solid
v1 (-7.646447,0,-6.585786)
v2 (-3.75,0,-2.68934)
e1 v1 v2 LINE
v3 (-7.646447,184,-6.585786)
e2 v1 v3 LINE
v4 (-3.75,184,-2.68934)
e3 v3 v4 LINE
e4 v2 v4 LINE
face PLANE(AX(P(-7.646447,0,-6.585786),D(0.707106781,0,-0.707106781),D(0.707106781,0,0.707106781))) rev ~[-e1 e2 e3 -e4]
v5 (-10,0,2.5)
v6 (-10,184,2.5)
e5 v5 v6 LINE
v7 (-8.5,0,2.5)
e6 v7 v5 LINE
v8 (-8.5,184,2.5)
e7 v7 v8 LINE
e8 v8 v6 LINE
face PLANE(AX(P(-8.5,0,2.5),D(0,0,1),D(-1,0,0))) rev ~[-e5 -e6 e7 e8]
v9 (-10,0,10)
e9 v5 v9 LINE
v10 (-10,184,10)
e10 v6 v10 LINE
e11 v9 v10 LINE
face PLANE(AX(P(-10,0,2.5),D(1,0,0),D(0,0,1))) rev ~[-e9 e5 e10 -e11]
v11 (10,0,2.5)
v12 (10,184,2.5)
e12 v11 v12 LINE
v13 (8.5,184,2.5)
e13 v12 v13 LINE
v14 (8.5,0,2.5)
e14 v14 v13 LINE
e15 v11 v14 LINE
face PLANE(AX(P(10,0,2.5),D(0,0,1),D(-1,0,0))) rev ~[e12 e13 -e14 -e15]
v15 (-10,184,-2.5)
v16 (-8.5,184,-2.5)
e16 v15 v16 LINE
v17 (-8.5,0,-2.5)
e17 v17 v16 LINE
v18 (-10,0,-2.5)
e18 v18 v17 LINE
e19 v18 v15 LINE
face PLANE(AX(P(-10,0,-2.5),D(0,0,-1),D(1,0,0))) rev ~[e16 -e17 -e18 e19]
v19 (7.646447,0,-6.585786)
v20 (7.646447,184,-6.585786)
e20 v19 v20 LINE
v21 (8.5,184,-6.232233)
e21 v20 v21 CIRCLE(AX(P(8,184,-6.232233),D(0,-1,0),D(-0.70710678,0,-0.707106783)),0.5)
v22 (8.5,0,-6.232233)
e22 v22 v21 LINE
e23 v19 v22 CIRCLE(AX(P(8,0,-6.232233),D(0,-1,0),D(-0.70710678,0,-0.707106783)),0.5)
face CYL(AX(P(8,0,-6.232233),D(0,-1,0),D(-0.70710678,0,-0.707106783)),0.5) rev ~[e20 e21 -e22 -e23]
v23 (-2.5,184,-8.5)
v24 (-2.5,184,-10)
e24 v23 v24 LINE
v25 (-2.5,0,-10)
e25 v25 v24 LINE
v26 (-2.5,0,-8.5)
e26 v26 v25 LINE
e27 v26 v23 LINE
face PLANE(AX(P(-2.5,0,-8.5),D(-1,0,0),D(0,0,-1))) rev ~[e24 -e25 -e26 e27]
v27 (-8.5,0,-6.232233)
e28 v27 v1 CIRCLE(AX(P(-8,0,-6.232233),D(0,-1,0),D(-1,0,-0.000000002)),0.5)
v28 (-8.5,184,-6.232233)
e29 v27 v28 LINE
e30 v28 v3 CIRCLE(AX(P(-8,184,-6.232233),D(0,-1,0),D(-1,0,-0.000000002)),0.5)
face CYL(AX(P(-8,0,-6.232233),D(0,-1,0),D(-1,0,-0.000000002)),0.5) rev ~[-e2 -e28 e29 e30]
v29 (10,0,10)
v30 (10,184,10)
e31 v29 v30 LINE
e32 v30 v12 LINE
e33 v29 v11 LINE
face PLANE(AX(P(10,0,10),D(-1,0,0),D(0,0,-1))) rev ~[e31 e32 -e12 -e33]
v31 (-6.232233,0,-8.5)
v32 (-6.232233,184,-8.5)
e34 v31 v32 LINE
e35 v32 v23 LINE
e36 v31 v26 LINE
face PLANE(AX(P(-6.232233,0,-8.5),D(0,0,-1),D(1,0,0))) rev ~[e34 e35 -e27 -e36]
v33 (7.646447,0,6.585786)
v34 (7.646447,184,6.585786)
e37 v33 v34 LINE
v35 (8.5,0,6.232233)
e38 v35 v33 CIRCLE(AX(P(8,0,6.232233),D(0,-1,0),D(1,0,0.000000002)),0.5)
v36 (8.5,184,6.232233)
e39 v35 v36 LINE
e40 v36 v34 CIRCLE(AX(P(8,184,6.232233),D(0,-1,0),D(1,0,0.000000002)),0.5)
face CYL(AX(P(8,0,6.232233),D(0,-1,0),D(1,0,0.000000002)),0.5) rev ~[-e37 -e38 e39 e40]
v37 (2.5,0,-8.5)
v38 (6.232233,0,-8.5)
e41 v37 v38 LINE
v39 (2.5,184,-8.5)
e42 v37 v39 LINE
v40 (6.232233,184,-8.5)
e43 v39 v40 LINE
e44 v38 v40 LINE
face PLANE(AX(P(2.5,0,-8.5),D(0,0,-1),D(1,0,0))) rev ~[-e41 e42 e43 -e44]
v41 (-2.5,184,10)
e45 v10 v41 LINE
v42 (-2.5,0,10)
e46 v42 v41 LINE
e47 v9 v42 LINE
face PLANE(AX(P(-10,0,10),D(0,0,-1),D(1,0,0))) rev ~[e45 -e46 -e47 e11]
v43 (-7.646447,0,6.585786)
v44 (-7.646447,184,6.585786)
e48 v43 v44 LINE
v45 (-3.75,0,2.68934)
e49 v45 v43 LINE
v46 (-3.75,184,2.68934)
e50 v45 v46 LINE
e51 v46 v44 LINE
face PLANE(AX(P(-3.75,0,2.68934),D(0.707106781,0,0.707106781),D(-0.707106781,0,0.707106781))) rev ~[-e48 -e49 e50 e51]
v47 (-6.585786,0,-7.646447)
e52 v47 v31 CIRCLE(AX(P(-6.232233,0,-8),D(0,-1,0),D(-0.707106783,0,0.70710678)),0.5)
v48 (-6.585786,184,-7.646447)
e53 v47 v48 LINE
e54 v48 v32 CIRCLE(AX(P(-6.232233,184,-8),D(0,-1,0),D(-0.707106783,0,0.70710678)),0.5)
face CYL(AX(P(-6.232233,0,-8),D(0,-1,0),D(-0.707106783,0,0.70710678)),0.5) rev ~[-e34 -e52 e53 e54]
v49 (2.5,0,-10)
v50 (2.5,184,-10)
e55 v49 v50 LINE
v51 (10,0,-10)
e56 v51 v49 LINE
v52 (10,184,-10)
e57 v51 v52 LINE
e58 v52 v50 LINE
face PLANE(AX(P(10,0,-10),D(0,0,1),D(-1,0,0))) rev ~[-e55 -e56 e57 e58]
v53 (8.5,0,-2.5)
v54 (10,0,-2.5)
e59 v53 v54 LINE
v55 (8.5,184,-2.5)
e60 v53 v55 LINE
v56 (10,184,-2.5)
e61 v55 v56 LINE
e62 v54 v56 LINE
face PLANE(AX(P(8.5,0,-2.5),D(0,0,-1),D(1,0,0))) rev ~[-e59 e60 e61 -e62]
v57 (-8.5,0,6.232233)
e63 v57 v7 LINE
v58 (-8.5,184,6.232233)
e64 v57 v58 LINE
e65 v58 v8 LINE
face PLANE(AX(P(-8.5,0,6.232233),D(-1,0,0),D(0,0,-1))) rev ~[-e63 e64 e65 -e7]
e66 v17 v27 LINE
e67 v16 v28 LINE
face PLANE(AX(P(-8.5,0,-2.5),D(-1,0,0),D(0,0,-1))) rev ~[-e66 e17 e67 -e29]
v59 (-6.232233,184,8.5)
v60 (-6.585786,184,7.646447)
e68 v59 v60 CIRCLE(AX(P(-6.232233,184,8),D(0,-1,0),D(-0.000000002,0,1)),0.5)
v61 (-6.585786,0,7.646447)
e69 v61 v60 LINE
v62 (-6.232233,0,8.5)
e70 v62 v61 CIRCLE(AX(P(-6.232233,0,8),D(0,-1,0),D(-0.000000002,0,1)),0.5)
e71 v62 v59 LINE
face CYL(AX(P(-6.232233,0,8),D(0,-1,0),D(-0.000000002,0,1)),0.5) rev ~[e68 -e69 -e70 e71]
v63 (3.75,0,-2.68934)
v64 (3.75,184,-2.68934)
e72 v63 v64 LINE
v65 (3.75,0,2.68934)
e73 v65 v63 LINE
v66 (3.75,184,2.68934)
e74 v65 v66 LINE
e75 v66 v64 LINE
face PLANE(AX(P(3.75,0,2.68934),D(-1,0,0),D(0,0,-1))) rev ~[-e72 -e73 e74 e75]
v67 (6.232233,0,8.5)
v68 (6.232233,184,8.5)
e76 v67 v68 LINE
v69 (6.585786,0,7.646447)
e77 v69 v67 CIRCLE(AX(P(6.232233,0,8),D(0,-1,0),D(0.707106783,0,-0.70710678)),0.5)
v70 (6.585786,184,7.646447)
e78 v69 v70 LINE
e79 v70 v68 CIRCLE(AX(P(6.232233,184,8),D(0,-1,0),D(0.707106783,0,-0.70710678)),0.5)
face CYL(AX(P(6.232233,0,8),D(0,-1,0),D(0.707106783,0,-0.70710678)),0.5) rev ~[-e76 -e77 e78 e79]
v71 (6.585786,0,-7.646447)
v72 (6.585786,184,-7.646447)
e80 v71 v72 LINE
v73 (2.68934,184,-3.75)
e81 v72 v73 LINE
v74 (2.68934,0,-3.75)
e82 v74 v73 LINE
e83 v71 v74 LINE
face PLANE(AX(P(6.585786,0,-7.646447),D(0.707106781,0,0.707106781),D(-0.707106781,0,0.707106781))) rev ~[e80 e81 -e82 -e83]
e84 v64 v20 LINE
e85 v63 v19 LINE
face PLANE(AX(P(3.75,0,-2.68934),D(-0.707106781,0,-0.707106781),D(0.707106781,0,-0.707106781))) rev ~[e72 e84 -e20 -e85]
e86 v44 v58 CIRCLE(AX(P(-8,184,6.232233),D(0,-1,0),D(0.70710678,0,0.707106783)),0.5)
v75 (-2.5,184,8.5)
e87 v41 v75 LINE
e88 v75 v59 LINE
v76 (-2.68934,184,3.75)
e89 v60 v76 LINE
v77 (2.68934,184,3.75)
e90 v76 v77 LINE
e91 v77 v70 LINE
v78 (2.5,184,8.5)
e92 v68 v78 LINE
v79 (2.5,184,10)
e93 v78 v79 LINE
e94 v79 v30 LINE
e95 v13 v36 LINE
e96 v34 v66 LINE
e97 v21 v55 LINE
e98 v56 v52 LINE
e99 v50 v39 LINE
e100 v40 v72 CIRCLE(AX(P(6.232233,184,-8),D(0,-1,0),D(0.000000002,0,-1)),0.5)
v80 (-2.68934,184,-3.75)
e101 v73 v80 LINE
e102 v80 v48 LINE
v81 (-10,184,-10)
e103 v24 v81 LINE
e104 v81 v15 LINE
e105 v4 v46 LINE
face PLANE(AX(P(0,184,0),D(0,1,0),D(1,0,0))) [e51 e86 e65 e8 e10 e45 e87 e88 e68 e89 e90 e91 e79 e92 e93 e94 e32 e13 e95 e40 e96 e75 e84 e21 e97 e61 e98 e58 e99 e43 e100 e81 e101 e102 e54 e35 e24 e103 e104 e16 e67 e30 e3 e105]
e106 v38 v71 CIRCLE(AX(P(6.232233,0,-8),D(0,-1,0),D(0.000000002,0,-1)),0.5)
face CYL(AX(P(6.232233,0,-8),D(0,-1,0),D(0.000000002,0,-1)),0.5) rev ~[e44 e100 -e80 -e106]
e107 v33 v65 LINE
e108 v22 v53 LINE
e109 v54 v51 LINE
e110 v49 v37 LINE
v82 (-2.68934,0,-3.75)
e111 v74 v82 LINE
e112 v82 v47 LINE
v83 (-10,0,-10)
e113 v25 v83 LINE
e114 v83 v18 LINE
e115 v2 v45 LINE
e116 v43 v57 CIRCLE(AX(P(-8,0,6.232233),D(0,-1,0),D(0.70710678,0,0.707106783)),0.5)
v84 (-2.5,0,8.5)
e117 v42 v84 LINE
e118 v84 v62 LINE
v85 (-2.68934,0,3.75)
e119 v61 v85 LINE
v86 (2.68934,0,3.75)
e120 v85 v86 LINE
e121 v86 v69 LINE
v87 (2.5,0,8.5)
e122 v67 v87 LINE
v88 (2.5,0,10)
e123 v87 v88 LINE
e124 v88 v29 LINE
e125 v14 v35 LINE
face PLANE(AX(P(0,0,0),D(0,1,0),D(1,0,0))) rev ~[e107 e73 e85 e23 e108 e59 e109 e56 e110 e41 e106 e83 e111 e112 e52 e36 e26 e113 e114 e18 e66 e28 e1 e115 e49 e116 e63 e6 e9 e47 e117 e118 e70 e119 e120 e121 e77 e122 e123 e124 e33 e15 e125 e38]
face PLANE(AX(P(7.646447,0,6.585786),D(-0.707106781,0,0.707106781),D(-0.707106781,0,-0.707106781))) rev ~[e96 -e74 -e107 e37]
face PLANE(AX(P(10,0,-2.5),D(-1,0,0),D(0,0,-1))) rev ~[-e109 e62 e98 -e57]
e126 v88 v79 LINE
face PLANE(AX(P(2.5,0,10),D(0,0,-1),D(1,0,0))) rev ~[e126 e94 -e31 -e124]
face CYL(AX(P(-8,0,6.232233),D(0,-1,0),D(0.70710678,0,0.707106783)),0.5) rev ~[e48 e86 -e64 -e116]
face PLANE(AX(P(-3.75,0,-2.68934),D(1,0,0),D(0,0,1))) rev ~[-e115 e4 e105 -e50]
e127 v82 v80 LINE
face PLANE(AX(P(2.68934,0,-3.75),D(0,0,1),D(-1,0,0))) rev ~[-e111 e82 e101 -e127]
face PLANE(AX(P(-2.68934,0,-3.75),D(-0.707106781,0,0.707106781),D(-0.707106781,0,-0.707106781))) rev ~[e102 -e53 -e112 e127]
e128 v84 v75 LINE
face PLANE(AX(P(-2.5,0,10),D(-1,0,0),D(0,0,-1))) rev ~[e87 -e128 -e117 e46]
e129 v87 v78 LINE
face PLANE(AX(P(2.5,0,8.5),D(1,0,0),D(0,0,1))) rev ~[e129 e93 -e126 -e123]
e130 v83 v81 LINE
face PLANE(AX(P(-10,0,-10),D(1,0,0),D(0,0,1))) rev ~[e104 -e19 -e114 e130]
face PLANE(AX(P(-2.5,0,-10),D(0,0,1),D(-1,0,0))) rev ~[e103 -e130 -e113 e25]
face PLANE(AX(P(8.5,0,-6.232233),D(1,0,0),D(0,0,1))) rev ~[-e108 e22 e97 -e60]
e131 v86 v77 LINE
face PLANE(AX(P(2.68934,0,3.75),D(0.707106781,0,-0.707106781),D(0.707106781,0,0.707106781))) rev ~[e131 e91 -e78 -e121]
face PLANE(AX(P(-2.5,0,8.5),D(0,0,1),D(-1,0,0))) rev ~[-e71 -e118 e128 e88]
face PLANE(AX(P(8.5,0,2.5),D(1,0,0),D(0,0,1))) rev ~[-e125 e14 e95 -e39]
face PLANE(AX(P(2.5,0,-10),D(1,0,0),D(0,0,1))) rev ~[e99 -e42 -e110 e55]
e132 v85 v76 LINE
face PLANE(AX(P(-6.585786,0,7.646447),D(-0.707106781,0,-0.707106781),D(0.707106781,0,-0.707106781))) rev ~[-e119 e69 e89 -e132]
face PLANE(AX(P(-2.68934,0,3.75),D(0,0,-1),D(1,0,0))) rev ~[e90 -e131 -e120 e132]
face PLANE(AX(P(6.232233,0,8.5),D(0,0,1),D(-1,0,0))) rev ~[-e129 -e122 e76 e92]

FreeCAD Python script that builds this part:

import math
import FreeCAD as App
import Part
import Sketcher

V = App.Vector
Q = App.Units.Quantity

doc = App.newDocument("Part")
body = doc.addObject("PartDesign::Body", "Body")

sketch1 = body.newObject("Sketcher::SketchObject", "Sketch")
sketch1.AttachmentSupport = (doc.getObject("XZ_Plane"), [""])
sketch1.MapMode = "FlatFace"
sketch1.addGeometry(Part.LineSegment(V(-10, 2.5, 0), V(-10, 10, 0)), False)
sketch1.addGeometry(Part.LineSegment(V(-10, 10, 0), V(-2.5, 10, 0)), False)
sketch1.addGeometry(Part.LineSegment(V(-2.5, 10, 0), V(-2.5, 8.5, 0)), False)
sketch1.addGeometry(Part.LineSegment(V(-2.5, 8.5, 0), V(-6.2, 8.5, 0)), False)
sketch1.addGeometry(Part.ArcOfCircle(Part.Circle(V(-6.2, 8, 0), V(0, 0, 1), 0.5), math.radians(90), math.radians(225)), False)
sketch1.addGeometry(Part.LineSegment(V(-6.6, 7.6, 0), V(-2.7, 3.8, 0)), False)
sketch1.addGeometry(Part.LineSegment(V(-2.7, 3.8, 0), V(2.7, 3.8, 0)), False)
sketch1.addGeometry(Part.LineSegment(V(2.7, 3.8, 0), V(6.6, 7.6, 0)), False)
sketch1.addGeometry(Part.ArcOfCircle(Part.Circle(V(6.2, 8, 0), V(0, 0, 1), 0.5), math.radians(-45), math.radians(90)), False)
sketch1.addGeometry(Part.LineSegment(V(6.2, 8.5, 0), V(2.5, 8.5, 0)), False)
sketch1.addGeometry(Part.LineSegment(V(2.5, 8.5, 0), V(2.5, 10, 0)), False)
sketch1.addGeometry(Part.LineSegment(V(2.5, 10, 0), V(10, 10, 0)), False)
sketch1.addGeometry(Part.LineSegment(V(10, 10, 0), V(10, 2.5, 0)), False)
sketch1.addGeometry(Part.LineSegment(V(10, 2.5, 0), V(8.5, 2.5, 0)), False)
sketch1.addGeometry(Part.LineSegment(V(8.5, 2.5, 0), V(8.5, 6.2, 0)), False)
sketch1.addGeometry(Part.ArcOfCircle(Part.Circle(V(8, 6.2, 0), V(0, 0, 1), 0.5), math.radians(0), math.radians(135)), False)
sketch1.addGeometry(Part.LineSegment(V(7.6, 6.6, 0), V(3.8, 2.7, 0)), False)
sketch1.addGeometry(Part.LineSegment(V(3.8, 2.7, 0), V(3.8, -2.7, 0)), False)
sketch1.addGeometry(Part.LineSegment(V(3.8, -2.7, 0), V(7.6, -6.6, 0)), False)
sketch1.addGeometry(Part.ArcOfCircle(Part.Circle(V(8, -6.2, 0), V(0, 0, 1), 0.5), math.radians(-135), math.radians(0)), False)
sketch1.addGeometry(Part.LineSegment(V(8.5, -6.2, 0), V(8.5, -2.5, 0)), False)
sketch1.addGeometry(Part.LineSegment(V(8.5, -2.5, 0), V(10, -2.5, 0)), False)
sketch1.addGeometry(Part.LineSegment(V(10, -2.5, 0), V(10, -10, 0)), False)
sketch1.addGeometry(Part.LineSegment(V(10, -10, 0), V(2.5, -10, 0)), False)
sketch1.addGeometry(Part.LineSegment(V(2.5, -10, 0), V(2.5, -8.5, 0)), False)
sketch1.addGeometry(Part.LineSegment(V(2.5, -8.5, 0), V(6.2, -8.5, 0)), False)
sketch1.addGeometry(Part.ArcOfCircle(Part.Circle(V(6.2, -8, 0), V(0, 0, 1), 0.5), math.radians(-90), math.radians(45)), False)
sketch1.addGeometry(Part.LineSegment(V(6.6, -7.6, 0), V(2.7, -3.8, 0)), False)
sketch1.addGeometry(Part.LineSegment(V(2.7, -3.8, 0), V(-2.7, -3.8, 0)), False)
sketch1.addGeometry(Part.LineSegment(V(-2.7, -3.8, 0), V(-6.6, -7.6, 0)), False)
sketch1.addGeometry(Part.ArcOfCircle(Part.Circle(V(-6.2, -8, 0), V(0, 0, 1), 0.5), math.radians(135), math.radians(270)), False)
sketch1.addGeometry(Part.LineSegment(V(-6.2, -8.5, 0), V(-2.5, -8.5, 0)), False)
sketch1.addGeometry(Part.LineSegment(V(-2.5, -8.5, 0), V(-2.5, -10, 0)), False)
sketch1.addGeometry(Part.LineSegment(V(-2.5, -10, 0), V(-10, -10, 0)), False)
sketch1.addGeometry(Part.LineSegment(V(-10, -10, 0), V(-10, -2.5, 0)), False)
sketch1.addGeometry(Part.LineSegment(V(-10, -2.5, 0), V(-8.5, -2.5, 0)), False)
sketch1.addGeometry(Part.LineSegment(V(-8.5, -2.5, 0), V(-8.5, -6.2, 0)), False)
sketch1.addGeometry(Part.ArcOfCircle(Part.Circle(V(-8, -6.2, 0), V(0, 0, 1), 0.5), math.radians(-180), math.radians(-45)), False)
sketch1.addGeometry(Part.LineSegment(V(-7.6, -6.6, 0), V(-3.8, -2.7, 0)), False)
sketch1.addGeometry(Part.LineSegment(V(-3.8, -2.7, 0), V(-3.8, 2.7, 0)), False)
sketch1.addGeometry(Part.LineSegment(V(-3.8, 2.7, 0), V(-7.6, 6.6, 0)), False)
sketch1.addGeometry(Part.ArcOfCircle(Part.Circle(V(-8, 6.2, 0), V(0, 0, 1), 0.5), math.radians(45), math.radians(180)), False)
sketch1.addGeometry(Part.LineSegment(V(-8.5, 6.2, 0), V(-8.5, 2.5, 0)), False)
sketch1.addGeometry(Part.LineSegment(V(-8.5, 2.5, 0), V(-10, 2.5, 0)), False)
sketch1.addConstraint(Sketcher.Constraint("Coincident", 0, 2, 1, 1))
sketch1.addConstraint(Sketcher.Constraint("Coincident", 1, 2, 2, 1))
sketch1.addConstraint(Sketcher.Constraint("Coincident", 2, 2, 3, 1))
sketch1.addConstraint(Sketcher.Constraint("Tangent", 3, 2, 4, 1))
sketch1.addConstraint(Sketcher.Constraint("Tangent", 4, 2, 5, 1))
sketch1.addConstraint(Sketcher.Constraint("Coincident", 5, 2, 6, 1))
sketch1.addConstraint(Sketcher.Constraint("Coincident", 6, 2, 7, 1))
sketch1.addConstraint(Sketcher.Constraint("Tangent", 7, 2, 8, 1))
sketch1.addConstraint(Sketcher.Constraint("Tangent", 8, 2, 9, 1))
sketch1.addConstraint(Sketcher.Constraint("Coincident", 9, 2, 10, 1))
sketch1.addConstraint(Sketcher.Constraint("Coincident", 10, 2, 11, 1))
sketch1.addConstraint(Sketcher.Constraint("Coincident", 11, 2, 12, 1))
sketch1.addConstraint(Sketcher.Constraint("Coincident", 12, 2, 13, 1))
sketch1.addConstraint(Sketcher.Constraint("Coincident", 13, 2, 14, 1))
sketch1.addConstraint(Sketcher.Constraint("Tangent", 14, 2, 15, 1))
sketch1.addConstraint(Sketcher.Constraint("Tangent", 15, 2, 16, 1))
sketch1.addConstraint(Sketcher.Constraint("Coincident", 16, 2, 17, 1))
sketch1.addConstraint(Sketcher.Constraint("Coincident", 17, 2, 18, 1))
sketch1.addConstraint(Sketcher.Constraint("Tangent", 18, 2, 19, 1))
sketch1.addConstraint(Sketcher.Constraint("Tangent", 19, 2, 20, 1))
sketch1.addConstraint(Sketcher.Constraint("Coincident", 20, 2, 21, 1))
sketch1.addConstraint(Sketcher.Constraint("Coincident", 21, 2, 22, 1))
sketch1.addConstraint(Sketcher.Constraint("Coincident", 22, 2, 23, 1))
sketch1.addConstraint(Sketcher.Constraint("Coincident", 23, 2, 24, 1))
sketch1.addConstraint(Sketcher.Constraint("Coincident", 24, 2, 25, 1))
sketch1.addConstraint(Sketcher.Constraint("Tangent", 25, 2, 26, 1))
sketch1.addConstraint(Sketcher.Constraint("Tangent", 26, 2, 27, 1))
sketch1.addConstraint(Sketcher.Constraint("Coincident", 27, 2, 28, 1))
sketch1.addConstraint(Sketcher.Constraint("Coincident", 28, 2, 29, 1))
sketch1.addConstraint(Sketcher.Constraint("Tangent", 29, 2, 30, 1))
sketch1.addConstraint(Sketcher.Constraint("Tangent", 30, 2, 31, 1))
sketch1.addConstraint(Sketcher.Constraint("Coincident", 31, 2, 32, 1))
sketch1.addConstraint(Sketcher.Constraint("Coincident", 32, 2, 33, 1))
sketch1.addConstraint(Sketcher.Constraint("Coincident", 33, 2, 34, 1))
sketch1.addConstraint(Sketcher.Constraint("Coincident", 34, 2, 35, 1))
sketch1.addConstraint(Sketcher.Constraint("Coincident", 35, 2, 36, 1))
sketch1.addConstraint(Sketcher.Constraint("Tangent", 36, 2, 37, 1))
sketch1.addConstraint(Sketcher.Constraint("Tangent", 37, 2, 38, 1))
sketch1.addConstraint(Sketcher.Constraint("Coincident", 38, 2, 39, 1))
sketch1.addConstraint(Sketcher.Constraint("Coincident", 39, 2, 40, 1))
sketch1.addConstraint(Sketcher.Constraint("Tangent", 40, 2, 41, 1))
sketch1.addConstraint(Sketcher.Constraint("Tangent", 41, 2, 42, 1))
sketch1.addConstraint(Sketcher.Constraint("Coincident", 42, 2, 43, 1))
sketch1.addConstraint(Sketcher.Constraint("Coincident", 43, 2, 0, 1))
sketch1.addConstraint(Sketcher.Constraint("Vertical", 0))
sketch1.addConstraint(Sketcher.Constraint("Horizontal", 1))
sketch1.addConstraint(Sketcher.Constraint("Vertical", 2))
sketch1.addConstraint(Sketcher.Constraint("Horizontal", 3))
sketch1.addConstraint(Sketcher.Constraint("Horizontal", 6))
sketch1.addConstraint(Sketcher.Constraint("Horizontal", 9))
sketch1.addConstraint(Sketcher.Constraint("Vertical", 10))
sketch1.addConstraint(Sketcher.Constraint("Horizontal", 11))
sketch1.addConstraint(Sketcher.Constraint("Vertical", 12))
sketch1.addConstraint(Sketcher.Constraint("Horizontal", 13))
sketch1.addConstraint(Sketcher.Constraint("Vertical", 14))
sketch1.addConstraint(Sketcher.Constraint("Vertical", 17))
sketch1.addConstraint(Sketcher.Constraint("Vertical", 20))
sketch1.addConstraint(Sketcher.Constraint("Horizontal", 21))
sketch1.addConstraint(Sketcher.Constraint("Vertical", 22))
sketch1.addConstraint(Sketcher.Constraint("Horizontal", 23))
sketch1.addConstraint(Sketcher.Constraint("Vertical", 24))
sketch1.addConstraint(Sketcher.Constraint("Horizontal", 25))
sketch1.addConstraint(Sketcher.Constraint("Horizontal", 28))
sketch1.addConstraint(Sketcher.Constraint("Horizontal", 31))
sketch1.addConstraint(Sketcher.Constraint("Vertical", 32))
sketch1.addConstraint(Sketcher.Constraint("Horizontal", 33))
sketch1.addConstraint(Sketcher.Constraint("Vertical", 34))
sketch1.addConstraint(Sketcher.Constraint("Horizontal", 35))
sketch1.addConstraint(Sketcher.Constraint("Vertical", 36))
sketch1.addConstraint(Sketcher.Constraint("Vertical", 39))
sketch1.addConstraint(Sketcher.Constraint("Vertical", 42))
sketch1.addConstraint(Sketcher.Constraint("Horizontal", 43))
sketch1.addConstraint(Sketcher.Constraint("Equal", 4, 8))
sketch1.addConstraint(Sketcher.Constraint("Equal", 8, 15))
sketch1.addConstraint(Sketcher.Constraint("Equal", 15, 19))
sketch1.addConstraint(Sketcher.Constraint("Equal", 19, 26))
sketch1.addConstraint(Sketcher.Constraint("Equal", 26, 30))
sketch1.addConstraint(Sketcher.Constraint("Equal", 30, 37))
sketch1.addConstraint(Sketcher.Constraint("Equal", 37, 41))
sketch1.addConstraint(Sketcher.Constraint("Symmetric", 4, 3, 26, 3, -1, 1))
sketch1.addConstraint(Sketcher.Constraint("Symmetric", 8, 3, 30, 3, -1, 1))
sketch1.addConstraint(Sketcher.Constraint("Symmetric", 15, 3, 37, 3, -1, 1))
sketch1.addConstraint(Sketcher.Constraint("Symmetric", 19, 3, 41, 3, -1, 1))
sketch1.addConstraint(Sketcher.Constraint("Symmetric", 0, 2, 22, 2, -1, 1))
sketch1.addConstraint(Sketcher.Constraint("Symmetric", 5, 2, 27, 2, -1, 1))
sketch1.addConstraint(Sketcher.Constraint("Symmetric", 10, 2, 32, 2, -1, 1))
sketch1.addConstraint(Sketcher.Constraint("Symmetric", 12, 2, 34, 2, -1, 1))
sketch1.addConstraint(Sketcher.Constraint("Symmetric", 16, 2, 38, 2, -1, 1))
sketch1.addConstraint(Sketcher.Constraint("Symmetric", 4, 3, 8, 3, -2))
sketch1.addConstraint(Sketcher.Constraint("Symmetric", 19, 3, 37, 3, -2))
sketch1.addConstraint(Sketcher.Constraint("Symmetric", 1, 2, 10, 2, -2))
sketch1.addConstraint(Sketcher.Constraint("Symmetric", 21, 2, 34, 2, -2))
sketch1.addConstraint(Sketcher.Constraint("Perpendicular", 5, 7))
sketch1.addConstraint(Sketcher.Constraint("Parallel", 7, 16))
sketch1.addConstraint(Sketcher.Constraint("Perpendicular", 16, 18))
sketch1.addConstraint(Sketcher.Constraint("Perpendicular", 27, 29))
sketch1.addConstraint(Sketcher.Constraint("Perpendicular", 38, 40))
sketch1.addConstraint(Sketcher.Constraint("Horizontal", 4, 2, 7, 2))
sketch1.addConstraint(Sketcher.Constraint("Horizontal", 13, 2, 42, 2))
sketch1.addConstraint(Sketcher.Constraint("Vertical", 10, 2, 23, 2))
sketch1.addConstraint(Sketcher.Constraint("Equal", 33, 0))
sketch1.addConstraint(Sketcher.Constraint("Equal", 43, 2))
sketch1.addConstraint(Sketcher.Constraint("Equal", 31, 14))
sketch1.addConstraint(Sketcher.Constraint("Equal", 28, 17))
sketch1.addConstraint(Sketcher.Constraint("Equal", 7, 16))
sketch1.addConstraint(Sketcher.Constraint("Radius", 4, Q("0.5 mm")))
sketch1.addConstraint(Sketcher.Constraint("DistanceX", 1, 1, 1, 2, Q("7.5 mm")))
sketch1.addConstraint(Sketcher.Constraint("DistanceX", 13, 2, 13, 1, Q("1.5 mm")))
sketch1.addConstraint(Sketcher.Constraint("DistanceY", -1, 1, 4, 3, Q("8 mm")))
sketch1.addConstraint(Sketcher.Constraint("DistanceY", -1, 1, 5, 2, Q("3.75 mm")))
sketch1.addConstraint(Sketcher.Constraint("DistanceX", 6, 1, 6, 2, Q("5.37868 mm")))
pad1 = body.newObject("PartDesign::Pad", "Pad")
pad1.Profile = sketch1
pad1.Length = 184
pad1.Reversed = True

doc.recompute()
